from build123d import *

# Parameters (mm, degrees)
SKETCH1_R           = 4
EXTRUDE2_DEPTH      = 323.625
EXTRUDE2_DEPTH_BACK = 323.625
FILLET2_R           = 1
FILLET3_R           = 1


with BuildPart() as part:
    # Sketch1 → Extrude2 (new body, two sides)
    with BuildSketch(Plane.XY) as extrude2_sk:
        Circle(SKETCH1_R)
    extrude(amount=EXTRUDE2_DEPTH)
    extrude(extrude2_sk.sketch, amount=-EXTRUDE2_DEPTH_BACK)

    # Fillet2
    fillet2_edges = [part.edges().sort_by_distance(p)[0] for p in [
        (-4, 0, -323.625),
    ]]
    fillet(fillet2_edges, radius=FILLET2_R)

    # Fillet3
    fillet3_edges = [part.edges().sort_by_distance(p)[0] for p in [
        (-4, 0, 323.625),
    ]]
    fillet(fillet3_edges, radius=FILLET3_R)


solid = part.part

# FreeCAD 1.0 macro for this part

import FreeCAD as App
import Part
import Sketcher

V = App.Vector
Q = App.Units.Quantity


def edges_at(feature, points):
    """Names of the edges that pass closest to the given points."""
    edges = feature.Shape.Edges
    near = lambda p: min(range(len(edges)), key=lambda i: edges[i].distToShape(Part.Vertex(*p))[0])
    return sorted({f"Edge{near(p) + 1}" for p in points})

doc = App.newDocument("Part")
body = doc.addObject("PartDesign::Body", "Body")

# Sketch on XY plane
sketch1 = doc.addObject("Sketcher::SketchObject", "Sketch")
body.addObject(sketch1)
sketch1.AttachmentSupport = (doc.XY_Plane, [""])
sketch1.MapMode = "FlatFace"
sketch1.addGeometry(Part.Circle(V(0, 0, 0), V(0, 0, 1), 4), False)
sketch1.addConstraint(Sketcher.Constraint("Coincident", 0, 3, -1, 1))
sketch1.addConstraint(Sketcher.Constraint("Diameter", 0, Q("8 mm")))
pad1 = doc.addObject("PartDesign::Pad", "Pad")
body.addObject(pad1)
pad1.Profile = sketch1
pad1.Type = "TwoLengths"
pad1.Length = 323.625
pad1.Length2 = 323.625
doc.recompute()

fillet = doc.addObject("PartDesign::Fillet", "Fillet")
body.addObject(fillet)
fillet.Base = (pad1, edges_at(pad1, [(-4, 0, -323.625)]))
fillet.Radius = 1
doc.recompute()

fillet2 = doc.addObject("PartDesign::Fillet", "Fillet001")
body.addObject(fillet2)
fillet2.Base = (fillet, edges_at(fillet, [(-4, 0, 323.625)]))
fillet2.Radius = 1

doc.recompute()
